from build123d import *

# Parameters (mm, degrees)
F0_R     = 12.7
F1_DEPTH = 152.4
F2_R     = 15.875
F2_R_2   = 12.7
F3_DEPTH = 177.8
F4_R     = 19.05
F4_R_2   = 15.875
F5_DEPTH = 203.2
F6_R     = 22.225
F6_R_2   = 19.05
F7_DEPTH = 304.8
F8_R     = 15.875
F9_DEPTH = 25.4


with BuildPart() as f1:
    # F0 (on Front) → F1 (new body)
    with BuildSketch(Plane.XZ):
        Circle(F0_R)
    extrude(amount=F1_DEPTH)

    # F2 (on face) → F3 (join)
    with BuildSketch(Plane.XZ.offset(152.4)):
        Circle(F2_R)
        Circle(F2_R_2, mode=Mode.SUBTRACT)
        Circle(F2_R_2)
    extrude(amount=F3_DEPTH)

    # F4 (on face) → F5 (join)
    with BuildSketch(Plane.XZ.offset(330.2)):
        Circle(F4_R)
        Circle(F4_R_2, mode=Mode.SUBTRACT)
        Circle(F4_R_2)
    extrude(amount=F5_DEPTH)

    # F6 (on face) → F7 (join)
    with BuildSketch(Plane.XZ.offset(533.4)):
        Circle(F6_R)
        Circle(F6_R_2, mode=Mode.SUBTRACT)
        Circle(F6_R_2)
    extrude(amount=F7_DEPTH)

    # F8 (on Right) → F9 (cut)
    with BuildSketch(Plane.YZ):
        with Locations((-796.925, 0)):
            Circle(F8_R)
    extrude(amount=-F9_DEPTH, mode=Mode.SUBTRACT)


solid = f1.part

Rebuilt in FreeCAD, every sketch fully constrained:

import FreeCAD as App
import Part
import Sketcher
Q = App.Units.Quantity

doc = App.newDocument("Part")
body = doc.addObject("PartDesign::Body", "Body")

# Sketch on XZ plane
sketch1 = body.newObject("Sketcher::SketchObject", "Sketch")
sketch1.AttachmentSupport = (doc.getObject("XZ_Plane"), [""])
sketch1.MapMode = "FlatFace"
sketch1.addGeometry(Part.Circle(App.Vector(0, 0, 0), App.Vector(0, 0, 1), 13), False)
sketch1.addConstraint([
    Sketcher.Constraint("Coincident", 0, 3, -1, 1),
    Sketcher.Constraint("Diameter", 0, Q("1 in")),
])
pad1 = body.newObject("PartDesign::Pad", "Pad")
pad1.Profile = sketch1
pad1.Length = Q("6 in")

# Sketch on XZ plane
sketch2 = body.newObject("Sketcher::SketchObject", "Sketch001")
sketch2.AttachmentSupport = (doc.getObject("XZ_Plane"), [""])
sketch2.MapMode = "FlatFace"
sketch2.AttachmentOffset = App.Placement(App.Vector(0, 0, 6 * 25.4), App.Rotation())
sketch2.addGeometry(Part.Circle(App.Vector(0, 0, 0), App.Vector(0, 0, 1), 16), False)
sketch2.addConstraint([
    Sketcher.Constraint("Coincident", 0, 3, -1, 1),
    Sketcher.Constraint("Diameter", 0, Q("1.25 in")),
])
pad2 = body.newObject("PartDesign::Pad", "Pad001")
pad2.Profile = sketch2
pad2.Length = Q("7 in")

# Sketch on XZ plane
sketch3 = body.newObject("Sketcher::SketchObject", "Sketch002")
sketch3.AttachmentSupport = (doc.getObject("XZ_Plane"), [""])
sketch3.MapMode = "FlatFace"
sketch3.AttachmentOffset = App.Placement(App.Vector(0, 0, 13 * 25.4), App.Rotation())
sketch3.addGeometry(Part.Circle(App.Vector(0, 0, 0), App.Vector(0, 0, 1), 19), False)
sketch3.addConstraint([
    Sketcher.Constraint("Coincident", 0, 3, -1, 1),
    Sketcher.Constraint("Diameter", 0, Q("1.5 in")),
])
pad3 = body.newObject("PartDesign::Pad", "Pad002")
pad3.Profile = sketch3
pad3.Length = Q("8 in")

# Sketch on XZ plane
sketch4 = body.newObject("Sketcher::SketchObject", "Sketch003")
sketch4.AttachmentSupport = (doc.getObject("XZ_Plane"), [""])
sketch4.MapMode = "FlatFace"
sketch4.AttachmentOffset = App.Placement(App.Vector(0, 0, 21 * 25.4), App.Rotation())
sketch4.addGeometry(Part.Circle(App.Vector(0, 0, 0), App.Vector(0, 0, 1), 22), False)
sketch4.addConstraint([
    Sketcher.Constraint("Coincident", 0, 3, -1, 1),
    Sketcher.Constraint("Diameter", 0, Q("1.75 in")),
])
pad4 = body.newObject("PartDesign::Pad", "Pad003")
pad4.Profile = sketch4
pad4.Length = Q("12 in")

# Sketch on YZ plane
sketch5 = body.newObject("Sketcher::SketchObject", "Sketch004")
sketch5.AttachmentSupport = (doc.getObject("YZ_Plane"), [""])
sketch5.MapMode = "FlatFace"
sketch5.addGeometry(Part.Circle(App.Vector(-797, 0, 0), App.Vector(0, 0, 1), 16), False)
sketch5.addConstraint([
    Sketcher.Constraint("PointOnObject", 0, 3, -1),
    Sketcher.Constraint("Diameter", 0, Q("1.25 in")),
    Sketcher.Constraint("DistanceX", 0, 3, -1, 1, Q("31.375 in")),
])
pocket1 = body.newObject("PartDesign::Pocket", "Pocket")
pocket1.Profile = sketch5
pocket1.Length = Q("1 in")

doc.recompute()
